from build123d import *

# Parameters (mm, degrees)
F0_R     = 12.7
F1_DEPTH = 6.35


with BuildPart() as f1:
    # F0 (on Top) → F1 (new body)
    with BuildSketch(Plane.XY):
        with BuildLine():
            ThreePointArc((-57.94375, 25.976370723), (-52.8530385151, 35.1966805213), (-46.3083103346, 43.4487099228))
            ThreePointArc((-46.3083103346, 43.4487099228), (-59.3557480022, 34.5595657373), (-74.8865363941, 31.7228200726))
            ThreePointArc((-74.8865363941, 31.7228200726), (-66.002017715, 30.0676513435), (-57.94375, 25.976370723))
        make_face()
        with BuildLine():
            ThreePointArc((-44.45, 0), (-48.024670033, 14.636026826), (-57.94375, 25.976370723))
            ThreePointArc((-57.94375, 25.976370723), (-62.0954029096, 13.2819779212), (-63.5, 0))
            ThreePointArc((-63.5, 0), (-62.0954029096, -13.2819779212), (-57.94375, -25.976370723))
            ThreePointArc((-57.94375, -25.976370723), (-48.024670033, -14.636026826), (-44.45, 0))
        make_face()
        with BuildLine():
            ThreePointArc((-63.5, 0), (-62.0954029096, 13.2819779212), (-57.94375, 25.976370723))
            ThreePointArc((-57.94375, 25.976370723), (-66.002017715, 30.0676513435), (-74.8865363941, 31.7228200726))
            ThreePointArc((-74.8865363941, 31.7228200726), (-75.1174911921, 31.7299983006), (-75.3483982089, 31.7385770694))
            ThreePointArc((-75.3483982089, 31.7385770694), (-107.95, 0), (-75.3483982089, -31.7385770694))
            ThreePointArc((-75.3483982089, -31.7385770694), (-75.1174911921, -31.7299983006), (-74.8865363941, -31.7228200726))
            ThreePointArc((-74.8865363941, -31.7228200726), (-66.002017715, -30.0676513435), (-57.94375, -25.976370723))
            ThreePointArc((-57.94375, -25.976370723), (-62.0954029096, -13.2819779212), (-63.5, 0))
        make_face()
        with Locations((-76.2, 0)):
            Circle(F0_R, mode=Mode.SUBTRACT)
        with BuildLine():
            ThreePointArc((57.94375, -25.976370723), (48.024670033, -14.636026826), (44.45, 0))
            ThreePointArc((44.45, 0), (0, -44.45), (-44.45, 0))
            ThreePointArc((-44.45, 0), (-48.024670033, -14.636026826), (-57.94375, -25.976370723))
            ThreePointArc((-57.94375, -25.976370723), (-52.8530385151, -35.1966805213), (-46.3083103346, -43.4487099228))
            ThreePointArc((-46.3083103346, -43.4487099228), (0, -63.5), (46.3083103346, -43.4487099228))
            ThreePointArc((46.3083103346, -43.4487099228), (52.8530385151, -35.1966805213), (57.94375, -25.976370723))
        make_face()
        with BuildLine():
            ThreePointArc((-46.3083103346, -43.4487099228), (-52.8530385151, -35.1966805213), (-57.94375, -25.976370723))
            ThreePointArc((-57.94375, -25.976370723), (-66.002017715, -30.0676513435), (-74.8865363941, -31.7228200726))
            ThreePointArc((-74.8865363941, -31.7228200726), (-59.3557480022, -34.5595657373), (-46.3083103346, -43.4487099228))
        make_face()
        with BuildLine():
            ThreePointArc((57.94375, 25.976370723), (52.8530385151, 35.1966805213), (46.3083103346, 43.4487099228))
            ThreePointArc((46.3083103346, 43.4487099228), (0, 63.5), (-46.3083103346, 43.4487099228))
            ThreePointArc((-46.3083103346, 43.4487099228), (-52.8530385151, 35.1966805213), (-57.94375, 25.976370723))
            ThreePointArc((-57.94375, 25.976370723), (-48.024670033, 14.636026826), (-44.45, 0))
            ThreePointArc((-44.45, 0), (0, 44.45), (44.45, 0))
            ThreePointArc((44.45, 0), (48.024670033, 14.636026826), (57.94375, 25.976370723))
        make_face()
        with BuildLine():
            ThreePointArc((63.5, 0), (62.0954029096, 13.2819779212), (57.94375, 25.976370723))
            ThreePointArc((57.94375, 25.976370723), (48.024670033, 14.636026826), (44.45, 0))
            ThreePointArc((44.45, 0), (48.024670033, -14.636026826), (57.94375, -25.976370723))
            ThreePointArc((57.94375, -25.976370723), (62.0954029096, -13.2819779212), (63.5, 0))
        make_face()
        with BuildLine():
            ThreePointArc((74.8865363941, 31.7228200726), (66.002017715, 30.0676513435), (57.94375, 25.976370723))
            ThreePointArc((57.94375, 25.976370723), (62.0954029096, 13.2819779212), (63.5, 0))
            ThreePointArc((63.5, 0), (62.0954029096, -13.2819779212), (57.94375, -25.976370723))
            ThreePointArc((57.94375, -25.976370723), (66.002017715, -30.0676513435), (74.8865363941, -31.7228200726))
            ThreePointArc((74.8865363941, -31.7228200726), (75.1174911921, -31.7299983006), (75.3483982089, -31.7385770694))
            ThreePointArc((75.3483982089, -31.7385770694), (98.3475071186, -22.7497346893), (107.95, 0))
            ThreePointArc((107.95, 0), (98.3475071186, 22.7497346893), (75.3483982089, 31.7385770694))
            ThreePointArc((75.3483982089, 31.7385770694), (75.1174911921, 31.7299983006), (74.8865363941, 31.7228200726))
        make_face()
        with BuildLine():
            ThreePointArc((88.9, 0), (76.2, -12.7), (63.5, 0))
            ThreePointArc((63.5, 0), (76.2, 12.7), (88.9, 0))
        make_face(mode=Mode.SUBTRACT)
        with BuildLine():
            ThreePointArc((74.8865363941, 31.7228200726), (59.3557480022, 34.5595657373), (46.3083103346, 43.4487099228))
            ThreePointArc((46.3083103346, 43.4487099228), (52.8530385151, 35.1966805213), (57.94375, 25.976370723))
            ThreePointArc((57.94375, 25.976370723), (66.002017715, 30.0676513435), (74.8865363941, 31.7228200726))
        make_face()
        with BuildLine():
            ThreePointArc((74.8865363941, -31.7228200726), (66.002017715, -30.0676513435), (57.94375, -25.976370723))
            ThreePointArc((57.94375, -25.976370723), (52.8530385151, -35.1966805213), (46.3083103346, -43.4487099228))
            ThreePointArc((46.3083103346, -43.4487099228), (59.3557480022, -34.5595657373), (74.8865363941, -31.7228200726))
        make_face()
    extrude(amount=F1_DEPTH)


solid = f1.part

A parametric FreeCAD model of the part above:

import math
import FreeCAD as App
import Part
import Sketcher
from FreeCAD import Vector
Q = App.Units.Quantity

doc = App.newDocument("Part")
body = doc.addObject("PartDesign::Body", "Body")

# Sketch on XY plane
sketch1 = body.newObject("Sketcher::SketchObject", "Sketch")
sketch1.AttachmentSupport = (doc.getObject("XY_Plane"), [""])
sketch1.MapMode = "FlatFace"
sketch1.addGeometry(Part.ArcOfCircle(Part.Circle(Vector(73.818418, -69.807843, 0), Vector(0, 0, 1), 38.099998), math.radians(87.698556), math.radians(88.393524)), False)
sketch1.addGeometry(Part.ArcOfCircle(Part.Circle(Vector(76.2, 0, 0), Vector(0, 0, 1), 31.75), math.radians(-91.536978), math.radians(0)), False)
sketch1.addGeometry(Part.ArcOfCircle(Part.Circle(Vector(76.2, 0, 0), Vector(0, 0, 1), 31.75), math.radians(0), math.radians(91.536978)), False)
sketch1.addGeometry(Part.ArcOfCircle(Part.Circle(Vector(73.818418, 69.807843, 0), Vector(0, 0, 1), 38.099998), math.radians(-88.393524), math.radians(-87.698556)), False)
sketch1.addGeometry(Part.ArcOfCircle(Part.Circle(Vector(73.818418, 69.807845, 0), Vector(0, 0, 1), 38.1), math.radians(-136.223997), math.radians(-88.393524)), False)
sketch1.addGeometry(Part.ArcOfCircle(Part.Circle(Vector(0, 0, 0), Vector(0, 0, 1), 63.5), math.radians(43.175211), math.radians(136.824789)), False)
sketch1.addGeometry(Part.ArcOfCircle(Part.Circle(Vector(-73.818418, 69.807845, 0), Vector(0, 0, 1), 38.1), math.radians(-91.606476), math.radians(-43.776003)), False)
sketch1.addGeometry(Part.ArcOfCircle(Part.Circle(Vector(-73.818418, 69.807843, 0), Vector(0, 0, 1), 38.099998), math.radians(-92.301444), math.radians(-91.606476)), False)
sketch1.addGeometry(Part.ArcOfCircle(Part.Circle(Vector(-76.2, 0, 0), Vector(0, 0, 1), 31.75), math.radians(88.463022), math.radians(271.536978)), False)
sketch1.addGeometry(Part.ArcOfCircle(Part.Circle(Vector(-73.818418, -69.807843, 0), Vector(0, 0, 1), 38.099998), math.radians(91.606476), math.radians(92.301444)), False)
sketch1.addGeometry(Part.ArcOfCircle(Part.Circle(Vector(-73.818418, -69.807845, 0), Vector(0, 0, 1), 38.1), math.radians(43.776003), math.radians(91.606476)), False)
sketch1.addGeometry(Part.ArcOfCircle(Part.Circle(Vector(0, 0, 0), Vector(0, 0, 1), 63.5), math.radians(-136.824789), math.radians(-43.175211)), False)
sketch1.addGeometry(Part.ArcOfCircle(Part.Circle(Vector(73.818418, -69.807845, 0), Vector(0, 0, 1), 38.1), math.radians(88.393524), math.radians(136.223997)), False)
sketch1.addGeometry(Part.Circle(Vector(-76.2, 0, 0), Vector(0, 0, 1), 12.7), False)
sketch1.addGeometry(Part.Circle(Vector(76.2, 0, 0), Vector(0, 0, 1), 12.7), False)
sketch1.addGeometry(Part.Circle(Vector(0, 0, 0), Vector(0, 0, 1), 44.45), False)
sketch1.addConstraint(Sketcher.Constraint("Coincident", 0, 1, 1, 1))
sketch1.addConstraint(Sketcher.Constraint("Tangent", 1, 2, 2, 1))
sketch1.addConstraint(Sketcher.Constraint("Coincident", 2, 2, 3, 2))
sketch1.addConstraint(Sketcher.Constraint("Tangent", 3, 1, 4, 2))
sketch1.addConstraint(Sketcher.Constraint("Coincident", 4, 1, 5, 1))
sketch1.addConstraint(Sketcher.Constraint("Coincident", 5, 2, 6, 2))
sketch1.addConstraint(Sketcher.Constraint("Tangent", 6, 1, 7, 2))
sketch1.addConstraint(Sketcher.Constraint("Coincident", 7, 1, 8, 1))
sketch1.addConstraint(Sketcher.Constraint("Coincident", 8, 2, 9, 2))
sketch1.addConstraint(Sketcher.Constraint("Tangent", 9, 1, 10, 2))
sketch1.addConstraint(Sketcher.Constraint("Coincident", 10, 1, 11, 1))
sketch1.addConstraint(Sketcher.Constraint("Coincident", 11, 2, 12, 2))
sketch1.addConstraint(Sketcher.Constraint("Tangent", 12, 1, 0, 2))
sketch1.addConstraint(Sketcher.Constraint("Coincident", 5, 3, -1, 1))
sketch1.addConstraint(Sketcher.Constraint("Coincident", 11, 3, -1, 1))
sketch1.addConstraint(Sketcher.Constraint("Coincident", 15, 3, -1, 1))
sketch1.addConstraint(Sketcher.Constraint("Coincident", 13, 3, 8, 3))
sketch1.addConstraint(Sketcher.Constraint("Coincident", 14, 3, 1, 3))
sketch1.addConstraint(Sketcher.Constraint("Equal", 1, 2))
sketch1.addConstraint(Sketcher.Constraint("Equal", 0, 3))
sketch1.addConstraint(Sketcher.Constraint("Equal", 4, 6))
sketch1.addConstraint(Sketcher.Constraint("Equal", 3, 7))
sketch1.addConstraint(Sketcher.Constraint("Equal", 2, 8))
sketch1.addConstraint(Sketcher.Constraint("Equal", 7, 9))
sketch1.addConstraint(Sketcher.Constraint("Equal", 6, 10))
sketch1.addConstraint(Sketcher.Constraint("Equal", 5, 11))
sketch1.addConstraint(Sketcher.Constraint("Equal", 10, 12))
sketch1.addConstraint(Sketcher.Constraint("Equal", 13, 14))
sketch1.addConstraint(Sketcher.Constraint("Symmetric", 0, 3, 6, 3, -1, 1))
sketch1.addConstraint(Sketcher.Constraint("Symmetric", 1, 3, 8, 3, -1, 1))
sketch1.addConstraint(Sketcher.Constraint("Symmetric", 3, 3, 9, 3, -1, 1))
sketch1.addConstraint(Sketcher.Constraint("Symmetric", 6, 1, 12, 1, -1, 1))
sketch1.addConstraint(Sketcher.Constraint("Symmetric", 3, 3, 6, 3, -2))
sketch1.addConstraint(Sketcher.Constraint("PointOnObject", 1, 3, -1))
sketch1.addConstraint(Sketcher.Constraint("PointOnObject", 1, 2, -1))
sketch1.addConstraint(Sketcher.Constraint("Horizontal", 3, 1, 6, 1))
sketch1.addConstraint(Sketcher.Constraint("Horizontal", 9, 1, 12, 1))
sketch1.addConstraint(Sketcher.Constraint("Diameter", 13, Q("1 in")))
sketch1.addConstraint(Sketcher.Constraint("Diameter", 15, Q("3.5 in")))
sketch1.addConstraint(Sketcher.Constraint("Radius", 0, Q("1.4999999 in")))
sketch1.addConstraint(Sketcher.Constraint("Radius", 5, Q("2.5 in")))
sketch1.addConstraint(Sketcher.Constraint("Radius", 1, Q("1.25 in")))
sketch1.addConstraint(Sketcher.Constraint("DistanceX", -1, 1, 1, 3, Q("3 in")))
sketch1.addConstraint(Sketcher.Constraint("DistanceX", -1, 1, 0, 1, 75.348398))
sketch1.addConstraint(Sketcher.Constraint("DistanceY", -1, 1, 3, 1, 31.72282))
sketch1.addConstraint(Sketcher.Constraint("DistanceX", -1, 1, 4, 1, 46.30831))
pad1 = body.newObject("PartDesign::Pad", "Pad")
pad1.Profile = sketch1
pad1.Length = Q("0.25 in")

doc.recompute()
